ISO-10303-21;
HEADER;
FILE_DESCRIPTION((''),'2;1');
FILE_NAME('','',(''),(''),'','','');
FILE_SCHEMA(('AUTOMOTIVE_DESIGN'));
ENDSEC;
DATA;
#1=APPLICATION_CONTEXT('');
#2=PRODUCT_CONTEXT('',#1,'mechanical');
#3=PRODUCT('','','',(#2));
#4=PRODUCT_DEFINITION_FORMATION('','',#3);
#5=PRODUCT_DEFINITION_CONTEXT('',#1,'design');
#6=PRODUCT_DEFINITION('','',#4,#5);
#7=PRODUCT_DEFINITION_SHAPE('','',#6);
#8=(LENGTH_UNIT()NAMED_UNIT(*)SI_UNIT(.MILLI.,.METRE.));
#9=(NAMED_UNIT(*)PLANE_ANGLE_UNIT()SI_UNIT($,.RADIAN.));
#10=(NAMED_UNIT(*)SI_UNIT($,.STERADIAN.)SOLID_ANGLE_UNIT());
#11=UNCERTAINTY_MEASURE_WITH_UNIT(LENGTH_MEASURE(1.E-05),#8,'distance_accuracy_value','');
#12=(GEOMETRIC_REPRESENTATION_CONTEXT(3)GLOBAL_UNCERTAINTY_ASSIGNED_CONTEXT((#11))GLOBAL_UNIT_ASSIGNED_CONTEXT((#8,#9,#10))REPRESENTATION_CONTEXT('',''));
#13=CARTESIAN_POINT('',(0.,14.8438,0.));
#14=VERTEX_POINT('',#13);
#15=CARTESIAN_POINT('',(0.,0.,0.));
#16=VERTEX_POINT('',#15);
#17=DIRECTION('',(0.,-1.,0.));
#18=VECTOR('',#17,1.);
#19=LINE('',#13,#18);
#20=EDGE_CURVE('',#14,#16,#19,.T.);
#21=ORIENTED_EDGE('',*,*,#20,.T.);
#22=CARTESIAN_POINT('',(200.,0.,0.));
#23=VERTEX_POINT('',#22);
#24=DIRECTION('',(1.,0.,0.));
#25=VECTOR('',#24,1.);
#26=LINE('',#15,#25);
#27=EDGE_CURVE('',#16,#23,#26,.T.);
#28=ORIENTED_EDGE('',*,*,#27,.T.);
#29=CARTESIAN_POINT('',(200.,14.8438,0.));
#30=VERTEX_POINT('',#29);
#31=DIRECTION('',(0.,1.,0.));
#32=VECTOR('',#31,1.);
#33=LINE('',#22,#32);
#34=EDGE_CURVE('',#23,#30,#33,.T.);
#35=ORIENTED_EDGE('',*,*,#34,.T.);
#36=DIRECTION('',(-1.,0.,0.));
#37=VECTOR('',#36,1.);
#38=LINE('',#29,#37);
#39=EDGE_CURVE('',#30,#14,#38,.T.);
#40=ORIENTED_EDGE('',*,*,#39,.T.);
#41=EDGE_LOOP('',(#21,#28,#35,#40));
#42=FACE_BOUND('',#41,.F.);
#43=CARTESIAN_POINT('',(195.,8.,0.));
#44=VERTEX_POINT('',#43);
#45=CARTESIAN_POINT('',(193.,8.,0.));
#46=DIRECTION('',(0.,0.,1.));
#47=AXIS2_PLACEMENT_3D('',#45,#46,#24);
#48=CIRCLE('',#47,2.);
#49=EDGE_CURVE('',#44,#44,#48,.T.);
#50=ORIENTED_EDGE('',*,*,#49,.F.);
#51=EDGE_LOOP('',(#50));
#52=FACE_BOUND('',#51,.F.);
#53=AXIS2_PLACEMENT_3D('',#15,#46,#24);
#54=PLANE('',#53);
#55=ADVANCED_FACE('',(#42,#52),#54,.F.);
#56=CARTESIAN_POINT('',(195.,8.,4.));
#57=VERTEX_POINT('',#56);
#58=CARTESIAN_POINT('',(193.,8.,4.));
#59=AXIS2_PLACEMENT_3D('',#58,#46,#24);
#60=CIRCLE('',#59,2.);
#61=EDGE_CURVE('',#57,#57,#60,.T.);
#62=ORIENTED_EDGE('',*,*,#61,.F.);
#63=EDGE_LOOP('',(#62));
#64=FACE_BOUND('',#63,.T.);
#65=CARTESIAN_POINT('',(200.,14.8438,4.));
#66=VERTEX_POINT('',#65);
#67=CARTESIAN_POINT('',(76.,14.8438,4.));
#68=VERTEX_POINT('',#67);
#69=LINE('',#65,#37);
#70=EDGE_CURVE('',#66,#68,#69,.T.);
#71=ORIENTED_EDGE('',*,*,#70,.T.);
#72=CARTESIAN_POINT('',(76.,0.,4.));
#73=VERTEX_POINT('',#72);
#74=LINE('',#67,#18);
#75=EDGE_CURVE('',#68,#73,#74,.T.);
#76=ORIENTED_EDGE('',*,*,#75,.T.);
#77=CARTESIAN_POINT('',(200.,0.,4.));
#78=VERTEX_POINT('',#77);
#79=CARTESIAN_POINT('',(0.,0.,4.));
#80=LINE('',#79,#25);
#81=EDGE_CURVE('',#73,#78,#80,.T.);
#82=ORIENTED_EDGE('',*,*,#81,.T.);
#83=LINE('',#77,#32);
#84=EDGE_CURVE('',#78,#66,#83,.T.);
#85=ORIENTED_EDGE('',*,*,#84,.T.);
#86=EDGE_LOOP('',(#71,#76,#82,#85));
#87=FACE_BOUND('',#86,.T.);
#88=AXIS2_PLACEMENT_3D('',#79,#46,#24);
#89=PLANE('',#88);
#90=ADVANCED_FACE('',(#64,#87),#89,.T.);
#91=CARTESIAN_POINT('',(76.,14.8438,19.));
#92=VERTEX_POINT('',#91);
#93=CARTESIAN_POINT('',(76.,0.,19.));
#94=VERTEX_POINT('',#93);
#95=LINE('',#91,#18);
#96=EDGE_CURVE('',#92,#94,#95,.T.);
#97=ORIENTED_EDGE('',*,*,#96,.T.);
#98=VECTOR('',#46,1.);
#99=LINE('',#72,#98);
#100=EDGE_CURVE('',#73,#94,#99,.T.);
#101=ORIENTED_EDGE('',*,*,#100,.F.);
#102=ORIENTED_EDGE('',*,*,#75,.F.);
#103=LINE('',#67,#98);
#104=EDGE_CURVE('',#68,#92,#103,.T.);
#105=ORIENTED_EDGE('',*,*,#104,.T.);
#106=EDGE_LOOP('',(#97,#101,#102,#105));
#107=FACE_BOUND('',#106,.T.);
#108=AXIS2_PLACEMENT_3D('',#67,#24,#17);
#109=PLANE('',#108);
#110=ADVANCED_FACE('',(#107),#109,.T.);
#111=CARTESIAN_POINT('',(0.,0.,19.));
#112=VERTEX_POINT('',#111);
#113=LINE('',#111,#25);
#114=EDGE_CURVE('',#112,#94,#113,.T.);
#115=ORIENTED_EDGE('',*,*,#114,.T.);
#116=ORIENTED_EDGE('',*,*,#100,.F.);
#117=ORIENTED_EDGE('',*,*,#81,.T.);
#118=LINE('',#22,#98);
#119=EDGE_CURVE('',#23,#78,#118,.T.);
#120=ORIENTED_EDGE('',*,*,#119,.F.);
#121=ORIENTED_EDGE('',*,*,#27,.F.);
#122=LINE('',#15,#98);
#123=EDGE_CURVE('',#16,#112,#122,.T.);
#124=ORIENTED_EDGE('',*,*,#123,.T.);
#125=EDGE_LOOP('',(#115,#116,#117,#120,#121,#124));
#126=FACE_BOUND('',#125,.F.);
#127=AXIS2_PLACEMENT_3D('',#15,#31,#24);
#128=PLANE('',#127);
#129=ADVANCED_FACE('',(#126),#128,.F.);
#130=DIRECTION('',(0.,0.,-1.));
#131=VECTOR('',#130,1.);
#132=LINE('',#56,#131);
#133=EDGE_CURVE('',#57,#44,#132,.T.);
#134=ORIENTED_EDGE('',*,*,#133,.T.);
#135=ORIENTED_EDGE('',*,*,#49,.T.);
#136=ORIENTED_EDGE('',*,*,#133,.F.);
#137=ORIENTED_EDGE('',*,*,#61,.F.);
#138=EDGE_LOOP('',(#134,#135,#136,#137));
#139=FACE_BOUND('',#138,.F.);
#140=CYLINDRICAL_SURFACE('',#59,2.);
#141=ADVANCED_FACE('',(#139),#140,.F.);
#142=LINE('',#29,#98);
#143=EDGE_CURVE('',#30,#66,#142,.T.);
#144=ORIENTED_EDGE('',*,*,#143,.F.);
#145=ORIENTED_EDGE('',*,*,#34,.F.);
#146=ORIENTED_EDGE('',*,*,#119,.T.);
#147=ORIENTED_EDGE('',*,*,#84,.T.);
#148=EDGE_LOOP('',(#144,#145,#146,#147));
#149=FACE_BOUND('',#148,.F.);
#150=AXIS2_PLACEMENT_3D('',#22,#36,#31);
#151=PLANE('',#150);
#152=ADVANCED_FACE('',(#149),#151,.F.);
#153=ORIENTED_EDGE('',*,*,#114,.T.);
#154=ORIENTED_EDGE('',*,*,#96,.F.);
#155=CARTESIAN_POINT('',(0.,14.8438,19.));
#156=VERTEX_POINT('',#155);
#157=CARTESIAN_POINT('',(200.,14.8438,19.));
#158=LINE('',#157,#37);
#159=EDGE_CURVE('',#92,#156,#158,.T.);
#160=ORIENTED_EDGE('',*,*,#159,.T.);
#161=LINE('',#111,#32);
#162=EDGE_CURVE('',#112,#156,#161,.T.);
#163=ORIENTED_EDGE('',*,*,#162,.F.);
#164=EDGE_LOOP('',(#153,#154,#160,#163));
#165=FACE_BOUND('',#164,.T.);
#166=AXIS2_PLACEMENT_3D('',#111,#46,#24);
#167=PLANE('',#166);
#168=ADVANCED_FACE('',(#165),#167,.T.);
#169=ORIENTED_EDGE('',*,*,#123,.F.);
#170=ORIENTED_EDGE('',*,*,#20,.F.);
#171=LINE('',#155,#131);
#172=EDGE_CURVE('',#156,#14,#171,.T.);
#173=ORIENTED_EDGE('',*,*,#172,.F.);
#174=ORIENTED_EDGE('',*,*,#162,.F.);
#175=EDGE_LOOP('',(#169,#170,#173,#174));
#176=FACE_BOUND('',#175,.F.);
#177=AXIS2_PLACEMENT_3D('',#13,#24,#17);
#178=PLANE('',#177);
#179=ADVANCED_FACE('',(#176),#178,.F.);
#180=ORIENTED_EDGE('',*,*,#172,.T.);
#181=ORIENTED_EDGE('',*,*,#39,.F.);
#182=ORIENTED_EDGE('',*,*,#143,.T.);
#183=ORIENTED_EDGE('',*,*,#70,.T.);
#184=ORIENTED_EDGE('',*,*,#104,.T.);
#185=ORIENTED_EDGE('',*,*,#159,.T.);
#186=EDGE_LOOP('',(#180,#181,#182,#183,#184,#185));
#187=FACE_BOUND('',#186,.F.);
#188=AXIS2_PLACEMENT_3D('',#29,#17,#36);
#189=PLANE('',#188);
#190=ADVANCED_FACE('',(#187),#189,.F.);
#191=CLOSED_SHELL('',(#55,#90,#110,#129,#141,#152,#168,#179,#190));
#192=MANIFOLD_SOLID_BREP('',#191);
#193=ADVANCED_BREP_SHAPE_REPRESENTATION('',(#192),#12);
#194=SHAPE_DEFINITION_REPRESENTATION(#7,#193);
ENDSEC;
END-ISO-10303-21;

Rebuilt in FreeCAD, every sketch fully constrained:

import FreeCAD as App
import Part
import Sketcher

V = App.Vector
Q = App.Units.Quantity

doc = App.newDocument("Part")
body = doc.addObject("PartDesign::Body", "Body")

sketch1 = body.newObject("Sketcher::SketchObject", "Sketch")
sketch1.AttachmentSupport = (doc.getObject("XY_Plane"), [""])
sketch1.MapMode = "FlatFace"
sketch1.addGeometry([
    Part.LineSegment(V(0, 15, 0), V(0, 0, 0)),
    Part.LineSegment(V(0, 0, 0), V(200, 0, 0)),
    Part.LineSegment(V(200, 0, 0), V(200, 15, 0)),
    Part.LineSegment(V(200, 15, 0), V(0, 15, 0)),
], False)
sketch1.addConstraint([
    Sketcher.Constraint("Coincident", 0, 2, 1, 1),
    Sketcher.Constraint("Coincident", 1, 2, 2, 1),
    Sketcher.Constraint("Coincident", 2, 2, 3, 1),
    Sketcher.Constraint("Coincident", 3, 2, 0, 1),
    Sketcher.Constraint("Vertical", 0),
    Sketcher.Constraint("Horizontal", 1),
    Sketcher.Constraint("Vertical", 2),
    Sketcher.Constraint("Horizontal", 3),
    Sketcher.Constraint("Coincident", 0, 2, -1, 1),
    Sketcher.Constraint("DistanceX", 1, 1, 1, 2, Q("200 mm")),
    Sketcher.Constraint("DistanceY", 0, 2, 0, 1, Q("14.8438 mm")),
])
pad1 = body.newObject("PartDesign::Pad", "Pad")
pad1.Profile = sketch1
pad1.Length = 4

sketch2 = body.newObject("Sketcher::SketchObject", "Sketch001")
sketch2.AttachmentSupport = (doc.getObject("XY_Plane"), [""])
sketch2.MapMode = "FlatFace"
sketch2.AttachmentOffset = App.Placement(V(0, 0, 4), App.Rotation())
sketch2.addGeometry([
    Part.LineSegment(V(76, 0, 0), V(76, 15, 0)),
    Part.LineSegment(V(76, 15, 0), V(0, 15, 0)),
    Part.LineSegment(V(0, 15, 0), V(0, 0, 0)),
    Part.LineSegment(V(0, 0, 0), V(76, 0, 0)),
], False)
sketch2.addConstraint([
    Sketcher.Constraint("Coincident", 0, 2, 1, 1),
    Sketcher.Constraint("Coincident", 1, 2, 2, 1),
    Sketcher.Constraint("Coincident", 2, 2, 3, 1),
    Sketcher.Constraint("Coincident", 3, 2, 0, 1),
    Sketcher.Constraint("Vertical", 0),
    Sketcher.Constraint("Horizontal", 1),
    Sketcher.Constraint("Vertical", 2),
    Sketcher.Constraint("Horizontal", 3),
    Sketcher.Constraint("Coincident", 2, 2, -1, 1),
    Sketcher.Constraint("DistanceX", 1, 2, 1, 1, Q("76 mm")),
    Sketcher.Constraint("DistanceY", 0, 1, 0, 2, Q("14.8438 mm")),
])
pad2 = body.newObject("PartDesign::Pad", "Pad001")
pad2.Profile = sketch2
pad2.Length = 15

sketch3 = body.newObject("Sketcher::SketchObject", "Sketch002")
sketch3.AttachmentSupport = (doc.getObject("XY_Plane"), [""])
sketch3.MapMode = "FlatFace"
sketch3.AttachmentOffset = App.Placement(V(0, 0, 4), App.Rotation())
sketch3.addGeometry(Part.Circle(V(193, 8, 0), V(0, 0, 1), 2), False)
sketch3.addConstraint([
    Sketcher.Constraint("Diameter", 0, Q("4 mm")),
    Sketcher.Constraint("DistanceX", -1, 1, 0, 3, Q("193 mm")),
    Sketcher.Constraint("DistanceY", -1, 1, 0, 3, Q("8 mm")),
])
pocket1 = body.newObject("PartDesign::Pocket", "Pocket")
pocket1.Profile = sketch3
pocket1.Length = 10

doc.recompute()
